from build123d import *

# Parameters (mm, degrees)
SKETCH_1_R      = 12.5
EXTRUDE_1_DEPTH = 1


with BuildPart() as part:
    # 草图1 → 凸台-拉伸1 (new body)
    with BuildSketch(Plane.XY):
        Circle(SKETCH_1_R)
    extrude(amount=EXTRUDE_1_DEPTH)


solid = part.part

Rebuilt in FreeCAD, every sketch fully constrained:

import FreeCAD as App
import Part
import Sketcher

doc = App.newDocument("Part")
body = doc.addObject("PartDesign::Body", "Body")

sketch1 = body.newObject("Sketcher::SketchObject", "Sketch")
sketch1.AttachmentSupport = (doc.getObject("XY_Plane"), [""])
sketch1.MapMode = "FlatFace"
sketch1.addGeometry(Part.Circle(App.Vector(0, 0, 0), App.Vector(0, 0, 1), 12.5), False)
sketch1.addConstraint(Sketcher.Constraint("Coincident", 0, 3, -1, 1))
sketch1.addConstraint(Sketcher.Constraint("Diameter", 0, 25.0))
pad1 = body.newObject("PartDesign::Pad", "Pad")
pad1.Profile = sketch1
pad1.Length = 1

doc.recompute()
